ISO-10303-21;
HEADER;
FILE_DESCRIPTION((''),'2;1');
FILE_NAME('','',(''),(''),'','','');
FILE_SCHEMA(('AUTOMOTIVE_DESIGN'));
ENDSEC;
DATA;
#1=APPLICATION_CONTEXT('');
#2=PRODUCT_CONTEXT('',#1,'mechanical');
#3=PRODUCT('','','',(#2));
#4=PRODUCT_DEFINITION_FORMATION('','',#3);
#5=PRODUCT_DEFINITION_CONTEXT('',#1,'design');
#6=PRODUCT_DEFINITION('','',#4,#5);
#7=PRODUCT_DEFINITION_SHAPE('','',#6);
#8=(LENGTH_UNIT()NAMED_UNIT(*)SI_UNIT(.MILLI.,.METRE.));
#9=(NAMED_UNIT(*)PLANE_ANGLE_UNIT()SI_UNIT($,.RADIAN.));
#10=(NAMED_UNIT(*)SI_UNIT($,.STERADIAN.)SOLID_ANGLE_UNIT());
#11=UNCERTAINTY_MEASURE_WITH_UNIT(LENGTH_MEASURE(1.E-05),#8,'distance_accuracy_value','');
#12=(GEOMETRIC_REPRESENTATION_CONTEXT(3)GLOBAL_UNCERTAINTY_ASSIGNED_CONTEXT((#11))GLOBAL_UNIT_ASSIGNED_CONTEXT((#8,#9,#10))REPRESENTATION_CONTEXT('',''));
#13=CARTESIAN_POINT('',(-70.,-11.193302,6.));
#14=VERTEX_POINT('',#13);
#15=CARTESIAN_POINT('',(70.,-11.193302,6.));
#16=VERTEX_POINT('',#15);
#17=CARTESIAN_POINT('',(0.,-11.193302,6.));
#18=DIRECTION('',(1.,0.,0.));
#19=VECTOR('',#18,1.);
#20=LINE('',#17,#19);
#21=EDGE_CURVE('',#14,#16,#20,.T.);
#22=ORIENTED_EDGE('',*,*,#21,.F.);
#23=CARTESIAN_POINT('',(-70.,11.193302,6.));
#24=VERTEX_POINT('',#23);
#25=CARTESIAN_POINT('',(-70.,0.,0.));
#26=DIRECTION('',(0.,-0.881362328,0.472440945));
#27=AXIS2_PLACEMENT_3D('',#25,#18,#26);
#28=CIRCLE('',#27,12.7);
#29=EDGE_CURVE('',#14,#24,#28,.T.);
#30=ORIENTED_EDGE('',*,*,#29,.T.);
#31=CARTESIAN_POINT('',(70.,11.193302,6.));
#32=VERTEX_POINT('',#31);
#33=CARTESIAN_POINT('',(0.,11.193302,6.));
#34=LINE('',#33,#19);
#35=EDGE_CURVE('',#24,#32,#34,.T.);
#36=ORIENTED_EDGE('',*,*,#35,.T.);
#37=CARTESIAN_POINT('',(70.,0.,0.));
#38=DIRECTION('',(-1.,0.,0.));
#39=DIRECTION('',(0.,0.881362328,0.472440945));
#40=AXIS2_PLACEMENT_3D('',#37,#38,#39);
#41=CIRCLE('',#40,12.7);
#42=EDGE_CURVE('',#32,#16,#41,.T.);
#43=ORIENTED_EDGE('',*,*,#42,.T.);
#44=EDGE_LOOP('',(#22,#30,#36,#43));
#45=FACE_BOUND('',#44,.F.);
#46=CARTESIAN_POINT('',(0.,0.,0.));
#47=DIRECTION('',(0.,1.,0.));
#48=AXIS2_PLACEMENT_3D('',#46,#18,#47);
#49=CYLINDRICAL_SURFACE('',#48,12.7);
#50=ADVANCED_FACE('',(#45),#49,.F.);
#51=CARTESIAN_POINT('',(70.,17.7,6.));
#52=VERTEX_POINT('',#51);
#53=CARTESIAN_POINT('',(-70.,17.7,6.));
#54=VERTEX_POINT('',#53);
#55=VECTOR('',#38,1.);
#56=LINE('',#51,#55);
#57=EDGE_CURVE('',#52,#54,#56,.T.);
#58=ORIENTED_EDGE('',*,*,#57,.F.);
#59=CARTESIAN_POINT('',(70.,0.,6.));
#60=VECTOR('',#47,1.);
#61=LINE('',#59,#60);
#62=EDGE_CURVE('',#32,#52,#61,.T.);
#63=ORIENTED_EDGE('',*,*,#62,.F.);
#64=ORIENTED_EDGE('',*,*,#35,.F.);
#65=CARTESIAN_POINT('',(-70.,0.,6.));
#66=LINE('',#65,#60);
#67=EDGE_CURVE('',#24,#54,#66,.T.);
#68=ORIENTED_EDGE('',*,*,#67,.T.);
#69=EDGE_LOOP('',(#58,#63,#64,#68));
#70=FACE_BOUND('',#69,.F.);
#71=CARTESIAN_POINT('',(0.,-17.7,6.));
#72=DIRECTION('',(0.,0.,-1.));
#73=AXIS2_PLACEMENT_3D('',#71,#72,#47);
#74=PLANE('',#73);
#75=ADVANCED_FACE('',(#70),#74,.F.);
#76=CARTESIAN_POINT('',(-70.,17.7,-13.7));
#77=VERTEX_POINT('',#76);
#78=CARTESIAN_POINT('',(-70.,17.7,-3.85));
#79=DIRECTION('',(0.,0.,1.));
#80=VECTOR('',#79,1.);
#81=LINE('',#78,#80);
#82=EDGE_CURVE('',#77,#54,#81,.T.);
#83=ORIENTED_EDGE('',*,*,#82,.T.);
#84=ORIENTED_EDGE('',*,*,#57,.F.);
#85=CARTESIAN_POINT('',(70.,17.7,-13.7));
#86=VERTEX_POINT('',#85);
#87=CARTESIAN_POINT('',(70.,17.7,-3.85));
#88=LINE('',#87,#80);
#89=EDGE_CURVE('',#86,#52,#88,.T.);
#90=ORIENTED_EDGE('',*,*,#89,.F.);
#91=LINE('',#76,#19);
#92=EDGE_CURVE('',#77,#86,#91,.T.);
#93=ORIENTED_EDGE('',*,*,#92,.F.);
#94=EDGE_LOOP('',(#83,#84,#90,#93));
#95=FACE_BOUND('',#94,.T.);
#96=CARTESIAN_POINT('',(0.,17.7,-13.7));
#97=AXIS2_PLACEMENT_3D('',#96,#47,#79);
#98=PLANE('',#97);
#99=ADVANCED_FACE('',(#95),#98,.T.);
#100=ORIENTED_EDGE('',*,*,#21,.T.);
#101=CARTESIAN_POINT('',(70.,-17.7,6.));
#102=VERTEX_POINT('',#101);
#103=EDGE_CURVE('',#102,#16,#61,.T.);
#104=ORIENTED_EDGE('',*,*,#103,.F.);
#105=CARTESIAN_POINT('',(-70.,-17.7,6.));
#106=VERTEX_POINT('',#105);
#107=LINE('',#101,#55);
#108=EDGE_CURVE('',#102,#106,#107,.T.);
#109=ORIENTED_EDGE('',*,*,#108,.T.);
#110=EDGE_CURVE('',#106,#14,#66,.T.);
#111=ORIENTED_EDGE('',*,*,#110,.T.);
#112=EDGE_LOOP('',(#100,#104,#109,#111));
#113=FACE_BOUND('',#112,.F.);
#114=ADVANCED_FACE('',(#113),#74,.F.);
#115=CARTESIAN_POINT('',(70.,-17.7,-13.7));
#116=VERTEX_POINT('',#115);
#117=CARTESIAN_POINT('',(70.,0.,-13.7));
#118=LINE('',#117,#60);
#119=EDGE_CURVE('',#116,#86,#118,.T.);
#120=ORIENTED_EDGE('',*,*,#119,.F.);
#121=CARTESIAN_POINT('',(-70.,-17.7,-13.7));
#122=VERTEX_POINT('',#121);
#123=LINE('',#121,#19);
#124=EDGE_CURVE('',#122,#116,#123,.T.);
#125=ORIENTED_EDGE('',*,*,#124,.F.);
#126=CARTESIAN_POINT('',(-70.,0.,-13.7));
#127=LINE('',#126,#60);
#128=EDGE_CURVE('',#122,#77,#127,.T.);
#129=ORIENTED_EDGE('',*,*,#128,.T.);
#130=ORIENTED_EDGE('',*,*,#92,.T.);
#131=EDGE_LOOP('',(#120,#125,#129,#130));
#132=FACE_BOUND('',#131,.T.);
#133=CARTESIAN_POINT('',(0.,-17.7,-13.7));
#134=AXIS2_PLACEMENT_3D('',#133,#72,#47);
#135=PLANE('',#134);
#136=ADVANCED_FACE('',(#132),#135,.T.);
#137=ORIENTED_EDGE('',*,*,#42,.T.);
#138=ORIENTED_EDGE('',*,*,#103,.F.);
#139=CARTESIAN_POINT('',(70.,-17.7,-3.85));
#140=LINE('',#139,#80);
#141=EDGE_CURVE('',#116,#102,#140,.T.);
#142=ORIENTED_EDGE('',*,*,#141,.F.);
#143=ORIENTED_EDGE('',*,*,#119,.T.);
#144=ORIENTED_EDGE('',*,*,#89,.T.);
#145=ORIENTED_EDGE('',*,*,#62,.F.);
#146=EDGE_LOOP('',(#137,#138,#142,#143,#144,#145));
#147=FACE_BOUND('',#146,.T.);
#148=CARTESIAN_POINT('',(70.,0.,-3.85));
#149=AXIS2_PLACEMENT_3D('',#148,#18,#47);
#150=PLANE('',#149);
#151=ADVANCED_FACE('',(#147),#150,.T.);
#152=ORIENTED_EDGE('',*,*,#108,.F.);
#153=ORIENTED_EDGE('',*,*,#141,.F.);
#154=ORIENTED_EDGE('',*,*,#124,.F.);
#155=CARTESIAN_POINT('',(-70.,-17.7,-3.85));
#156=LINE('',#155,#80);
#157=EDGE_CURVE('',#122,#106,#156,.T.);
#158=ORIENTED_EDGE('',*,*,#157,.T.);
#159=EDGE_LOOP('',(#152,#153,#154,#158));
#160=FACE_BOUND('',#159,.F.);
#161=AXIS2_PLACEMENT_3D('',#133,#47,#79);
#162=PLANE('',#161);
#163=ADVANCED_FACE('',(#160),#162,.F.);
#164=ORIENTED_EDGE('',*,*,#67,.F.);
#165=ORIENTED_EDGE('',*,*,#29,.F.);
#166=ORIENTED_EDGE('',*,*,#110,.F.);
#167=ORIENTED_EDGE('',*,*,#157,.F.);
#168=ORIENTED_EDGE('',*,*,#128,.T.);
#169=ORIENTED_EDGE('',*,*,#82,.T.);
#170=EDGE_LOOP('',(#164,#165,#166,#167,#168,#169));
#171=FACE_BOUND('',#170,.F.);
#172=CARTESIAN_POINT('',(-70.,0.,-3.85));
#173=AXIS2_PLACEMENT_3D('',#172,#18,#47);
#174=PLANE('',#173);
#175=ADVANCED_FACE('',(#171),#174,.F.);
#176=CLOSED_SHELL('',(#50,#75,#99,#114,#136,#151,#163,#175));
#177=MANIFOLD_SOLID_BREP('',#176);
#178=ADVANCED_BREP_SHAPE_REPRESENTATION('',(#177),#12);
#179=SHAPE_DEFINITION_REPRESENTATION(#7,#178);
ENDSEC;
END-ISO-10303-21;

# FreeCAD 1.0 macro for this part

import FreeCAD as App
import Part
import Sketcher
from FreeCAD import Vector
Q = App.Units.Quantity

doc = App.newDocument("Part")
body = doc.addObject("PartDesign::Body", "Body")

sketch1 = doc.addObject("Sketcher::SketchObject", "Sketch")
body.addObject(sketch1)
sketch1.AttachmentSupport = (doc.YZ_Plane, [""])
sketch1.MapMode = "FlatFace"
sketch1.addGeometry(Part.Circle(Vector(0, 0, 0), Vector(0, 0, 1), 12.7), False)
sketch1.addConstraint(Sketcher.Constraint("Coincident", 0, 3, -1, 1))
sketch1.addConstraint(Sketcher.Constraint("Diameter", 0, Q("25.4 mm")))
pad1 = doc.addObject("PartDesign::Pad", "Pad")
body.addObject(pad1)
pad1.Profile = sketch1
pad1.Type = "TwoLengths"
pad1.Length = 70
pad1.Length2 = 70
body2 = doc.addObject("PartDesign::Body", "Body001")

sketch2 = doc.addObject("Sketcher::SketchObject", "Sketch001")
body2.addObject(sketch2)
sketch2.AttachmentSupport = (doc.getObject("YZ_Plane001"), [""])
sketch2.MapMode = "FlatFace"
sketch2.addGeometry(Part.LineSegment(Vector(-17.7, 6, 0), Vector(-17.7, -13.7, 0)), False)
sketch2.addGeometry(Part.LineSegment(Vector(-17.7, -13.7, 0), Vector(17.7, -13.7, 0)), False)
sketch2.addGeometry(Part.LineSegment(Vector(17.7, -13.7, 0), Vector(17.7, 6, 0)), False)
sketch2.addGeometry(Part.LineSegment(Vector(17.7, 6, 0), Vector(-17.7, 6, 0)), False)
sketch2.addConstraint(Sketcher.Constraint("Coincident", 0, 2, 1, 1))
sketch2.addConstraint(Sketcher.Constraint("Coincident", 1, 2, 2, 1))
sketch2.addConstraint(Sketcher.Constraint("Coincident", 2, 2, 3, 1))
sketch2.addConstraint(Sketcher.Constraint("Coincident", 3, 2, 0, 1))
sketch2.addConstraint(Sketcher.Constraint("Vertical", 0))
sketch2.addConstraint(Sketcher.Constraint("Horizontal", 1))
sketch2.addConstraint(Sketcher.Constraint("Vertical", 2))
sketch2.addConstraint(Sketcher.Constraint("Horizontal", 3))
sketch2.addConstraint(Sketcher.Constraint("DistanceX", 1, 1, 1, 2, Q("35.4 mm")))
sketch2.addConstraint(Sketcher.Constraint("DistanceY", 0, 2, 0, 1, Q("19.7 mm")))
sketch2.addConstraint(Sketcher.Constraint("DistanceY", -1, 1, 2, 2, Q("6 mm")))
sketch2.addConstraint(Sketcher.Constraint("DistanceX", 0, 2, -1, 1, Q("17.7 mm")))
pad2 = doc.addObject("PartDesign::Pad", "Pad001")
body2.addObject(pad2)
pad2.Profile = sketch2
pad2.Type = "TwoLengths"
pad2.Length = 70
pad2.Length2 = 70
doc.recompute()

boolean = doc.addObject("PartDesign::Boolean", "Boolean")
body2.addObject(boolean)
boolean.Type = "Cut"
boolean.addObjects([body])

doc.recompute()
